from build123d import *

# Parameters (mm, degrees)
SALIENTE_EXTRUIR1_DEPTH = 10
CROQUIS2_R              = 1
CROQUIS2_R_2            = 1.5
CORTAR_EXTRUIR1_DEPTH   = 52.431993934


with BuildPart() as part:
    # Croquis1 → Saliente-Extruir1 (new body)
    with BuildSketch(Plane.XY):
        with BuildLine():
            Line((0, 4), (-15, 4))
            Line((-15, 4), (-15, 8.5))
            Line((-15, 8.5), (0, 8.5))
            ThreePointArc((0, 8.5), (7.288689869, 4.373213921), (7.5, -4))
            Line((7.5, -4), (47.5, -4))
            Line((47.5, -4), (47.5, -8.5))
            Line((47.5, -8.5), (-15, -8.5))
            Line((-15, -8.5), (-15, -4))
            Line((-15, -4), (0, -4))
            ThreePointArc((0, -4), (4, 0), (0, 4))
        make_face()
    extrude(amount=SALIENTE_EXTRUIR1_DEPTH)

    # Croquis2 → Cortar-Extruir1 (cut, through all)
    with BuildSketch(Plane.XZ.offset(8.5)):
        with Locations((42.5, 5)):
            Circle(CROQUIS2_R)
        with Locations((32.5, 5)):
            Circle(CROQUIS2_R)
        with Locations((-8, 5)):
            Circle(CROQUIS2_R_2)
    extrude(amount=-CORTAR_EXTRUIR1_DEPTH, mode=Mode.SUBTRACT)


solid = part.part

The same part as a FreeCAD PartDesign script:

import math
import FreeCAD as App
import Part
import Sketcher

V = App.Vector

doc = App.newDocument("Part")
body = doc.addObject("PartDesign::Body", "Body")

# Sketch on XY plane
sketch1 = body.newObject("Sketcher::SketchObject", "Sketch")
sketch1.AttachmentSupport = (doc.getObject("XY_Plane"), [""])
sketch1.MapMode = "FlatFace"
sketch1.addGeometry([
    Part.LineSegment(V(-15, 4, 0), V(0, 4, 0)),  # 0
    Part.ArcOfCircle(Part.Circle(V(0, 0, 0), V(0, 0, 1), 4), math.radians(-90), math.radians(90)),  # 1
    Part.LineSegment(V(0, -4, 0), V(-15, -4, 0)),  # 2
    Part.LineSegment(V(-15, -4, 0), V(-15, -8.5, 0)),  # 3
    Part.LineSegment(V(-15, -8.5, 0), V(47.5, -8.5, 0)),  # 4
    Part.LineSegment(V(47.5, -8.5, 0), V(47.5, -4, 0)),  # 5
    Part.LineSegment(V(47.5, -4, 0), V(7.5, -4, 0)),  # 6
    Part.ArcOfCircle(Part.Circle(V(0, 0, 0), V(0, 0, 1), 8.5), math.radians(-28.072487), math.radians(90)),  # 7
    Part.LineSegment(V(0, 8.5, 0), V(-15, 8.5, 0)),  # 8
    Part.LineSegment(V(-15, 8.5, 0), V(-15, 4, 0)),  # 9
], False)
sketch1.addConstraint([
    Sketcher.Constraint("Tangent", 0, 2, 1, 2),
    Sketcher.Constraint("Tangent", 1, 1, 2, 1),
    Sketcher.Constraint("Coincident", 2, 2, 3, 1),
    Sketcher.Constraint("Coincident", 3, 2, 4, 1),
    Sketcher.Constraint("Coincident", 4, 2, 5, 1),
    Sketcher.Constraint("Coincident", 5, 2, 6, 1),
    Sketcher.Constraint("Coincident", 6, 2, 7, 1),
    Sketcher.Constraint("Tangent", 7, 2, 8, 1),
    Sketcher.Constraint("Coincident", 8, 2, 9, 1),
    Sketcher.Constraint("Coincident", 9, 2, 0, 1),
    Sketcher.Constraint("Horizontal", 0),
    Sketcher.Constraint("Horizontal", 2),
    Sketcher.Constraint("Vertical", 3),
    Sketcher.Constraint("Horizontal", 4),
    Sketcher.Constraint("Vertical", 5),
    Sketcher.Constraint("Horizontal", 6),
    Sketcher.Constraint("Horizontal", 8),
    Sketcher.Constraint("Vertical", 9),
    Sketcher.Constraint("Coincident", 1, 3, -1, 1),
    Sketcher.Constraint("Coincident", 7, 3, -1, 1),
    Sketcher.Constraint("Symmetric", 3, 2, 8, 2, -1),
    Sketcher.Constraint("Horizontal", 2, 2, 5, 2),
    Sketcher.Constraint("Radius", 1, 4.0),
    Sketcher.Constraint("Radius", 7, 8.5),
    Sketcher.Constraint("DistanceX", 0, 1, 0, 2, 15.0),
    Sketcher.Constraint("DistanceX", 6, 2, 6, 1, 40.0),
])
pad1 = body.newObject("PartDesign::Pad", "Pad")
pad1.Profile = sketch1
pad1.Length = 10

# Sketch on XZ plane
sketch2 = body.newObject("Sketcher::SketchObject", "Sketch001")
sketch2.AttachmentSupport = (doc.getObject("XZ_Plane"), [""])
sketch2.MapMode = "FlatFace"
sketch2.AttachmentOffset = App.Placement(V(0, 0, 8.5), App.Rotation())
sketch2.addGeometry([
    Part.Circle(V(42.5, 5, 0), V(0, 0, 1), 1),
    Part.Circle(V(32.5, 5, 0), V(0, 0, 1), 1),
    Part.Circle(V(-8, 5, 0), V(0, 0, 1), 1.5),
], False)
sketch2.addConstraint([
    Sketcher.Constraint("Equal", 0, 1),
    Sketcher.Constraint("Horizontal", 0, 3, 1, 3),
    Sketcher.Constraint("Horizontal", 1, 3, 2, 3),
    Sketcher.Constraint("Diameter", 0, 2.0),
    Sketcher.Constraint("Diameter", 2, 3.0),
    Sketcher.Constraint("DistanceY", -1, 1, 0, 3, 5.0),
    Sketcher.Constraint("DistanceX", 2, 3, -1, 1, 8.0),
    Sketcher.Constraint("DistanceX", 1, 3, 0, 3, 10.0),
    Sketcher.Constraint("DistanceX", -1, 1, 0, 3, 42.5),
])
pocket1 = body.newObject("PartDesign::Pocket", "Pocket")
pocket1.Profile = sketch2
pocket1.Type = "ThroughAll"

doc.recompute()
